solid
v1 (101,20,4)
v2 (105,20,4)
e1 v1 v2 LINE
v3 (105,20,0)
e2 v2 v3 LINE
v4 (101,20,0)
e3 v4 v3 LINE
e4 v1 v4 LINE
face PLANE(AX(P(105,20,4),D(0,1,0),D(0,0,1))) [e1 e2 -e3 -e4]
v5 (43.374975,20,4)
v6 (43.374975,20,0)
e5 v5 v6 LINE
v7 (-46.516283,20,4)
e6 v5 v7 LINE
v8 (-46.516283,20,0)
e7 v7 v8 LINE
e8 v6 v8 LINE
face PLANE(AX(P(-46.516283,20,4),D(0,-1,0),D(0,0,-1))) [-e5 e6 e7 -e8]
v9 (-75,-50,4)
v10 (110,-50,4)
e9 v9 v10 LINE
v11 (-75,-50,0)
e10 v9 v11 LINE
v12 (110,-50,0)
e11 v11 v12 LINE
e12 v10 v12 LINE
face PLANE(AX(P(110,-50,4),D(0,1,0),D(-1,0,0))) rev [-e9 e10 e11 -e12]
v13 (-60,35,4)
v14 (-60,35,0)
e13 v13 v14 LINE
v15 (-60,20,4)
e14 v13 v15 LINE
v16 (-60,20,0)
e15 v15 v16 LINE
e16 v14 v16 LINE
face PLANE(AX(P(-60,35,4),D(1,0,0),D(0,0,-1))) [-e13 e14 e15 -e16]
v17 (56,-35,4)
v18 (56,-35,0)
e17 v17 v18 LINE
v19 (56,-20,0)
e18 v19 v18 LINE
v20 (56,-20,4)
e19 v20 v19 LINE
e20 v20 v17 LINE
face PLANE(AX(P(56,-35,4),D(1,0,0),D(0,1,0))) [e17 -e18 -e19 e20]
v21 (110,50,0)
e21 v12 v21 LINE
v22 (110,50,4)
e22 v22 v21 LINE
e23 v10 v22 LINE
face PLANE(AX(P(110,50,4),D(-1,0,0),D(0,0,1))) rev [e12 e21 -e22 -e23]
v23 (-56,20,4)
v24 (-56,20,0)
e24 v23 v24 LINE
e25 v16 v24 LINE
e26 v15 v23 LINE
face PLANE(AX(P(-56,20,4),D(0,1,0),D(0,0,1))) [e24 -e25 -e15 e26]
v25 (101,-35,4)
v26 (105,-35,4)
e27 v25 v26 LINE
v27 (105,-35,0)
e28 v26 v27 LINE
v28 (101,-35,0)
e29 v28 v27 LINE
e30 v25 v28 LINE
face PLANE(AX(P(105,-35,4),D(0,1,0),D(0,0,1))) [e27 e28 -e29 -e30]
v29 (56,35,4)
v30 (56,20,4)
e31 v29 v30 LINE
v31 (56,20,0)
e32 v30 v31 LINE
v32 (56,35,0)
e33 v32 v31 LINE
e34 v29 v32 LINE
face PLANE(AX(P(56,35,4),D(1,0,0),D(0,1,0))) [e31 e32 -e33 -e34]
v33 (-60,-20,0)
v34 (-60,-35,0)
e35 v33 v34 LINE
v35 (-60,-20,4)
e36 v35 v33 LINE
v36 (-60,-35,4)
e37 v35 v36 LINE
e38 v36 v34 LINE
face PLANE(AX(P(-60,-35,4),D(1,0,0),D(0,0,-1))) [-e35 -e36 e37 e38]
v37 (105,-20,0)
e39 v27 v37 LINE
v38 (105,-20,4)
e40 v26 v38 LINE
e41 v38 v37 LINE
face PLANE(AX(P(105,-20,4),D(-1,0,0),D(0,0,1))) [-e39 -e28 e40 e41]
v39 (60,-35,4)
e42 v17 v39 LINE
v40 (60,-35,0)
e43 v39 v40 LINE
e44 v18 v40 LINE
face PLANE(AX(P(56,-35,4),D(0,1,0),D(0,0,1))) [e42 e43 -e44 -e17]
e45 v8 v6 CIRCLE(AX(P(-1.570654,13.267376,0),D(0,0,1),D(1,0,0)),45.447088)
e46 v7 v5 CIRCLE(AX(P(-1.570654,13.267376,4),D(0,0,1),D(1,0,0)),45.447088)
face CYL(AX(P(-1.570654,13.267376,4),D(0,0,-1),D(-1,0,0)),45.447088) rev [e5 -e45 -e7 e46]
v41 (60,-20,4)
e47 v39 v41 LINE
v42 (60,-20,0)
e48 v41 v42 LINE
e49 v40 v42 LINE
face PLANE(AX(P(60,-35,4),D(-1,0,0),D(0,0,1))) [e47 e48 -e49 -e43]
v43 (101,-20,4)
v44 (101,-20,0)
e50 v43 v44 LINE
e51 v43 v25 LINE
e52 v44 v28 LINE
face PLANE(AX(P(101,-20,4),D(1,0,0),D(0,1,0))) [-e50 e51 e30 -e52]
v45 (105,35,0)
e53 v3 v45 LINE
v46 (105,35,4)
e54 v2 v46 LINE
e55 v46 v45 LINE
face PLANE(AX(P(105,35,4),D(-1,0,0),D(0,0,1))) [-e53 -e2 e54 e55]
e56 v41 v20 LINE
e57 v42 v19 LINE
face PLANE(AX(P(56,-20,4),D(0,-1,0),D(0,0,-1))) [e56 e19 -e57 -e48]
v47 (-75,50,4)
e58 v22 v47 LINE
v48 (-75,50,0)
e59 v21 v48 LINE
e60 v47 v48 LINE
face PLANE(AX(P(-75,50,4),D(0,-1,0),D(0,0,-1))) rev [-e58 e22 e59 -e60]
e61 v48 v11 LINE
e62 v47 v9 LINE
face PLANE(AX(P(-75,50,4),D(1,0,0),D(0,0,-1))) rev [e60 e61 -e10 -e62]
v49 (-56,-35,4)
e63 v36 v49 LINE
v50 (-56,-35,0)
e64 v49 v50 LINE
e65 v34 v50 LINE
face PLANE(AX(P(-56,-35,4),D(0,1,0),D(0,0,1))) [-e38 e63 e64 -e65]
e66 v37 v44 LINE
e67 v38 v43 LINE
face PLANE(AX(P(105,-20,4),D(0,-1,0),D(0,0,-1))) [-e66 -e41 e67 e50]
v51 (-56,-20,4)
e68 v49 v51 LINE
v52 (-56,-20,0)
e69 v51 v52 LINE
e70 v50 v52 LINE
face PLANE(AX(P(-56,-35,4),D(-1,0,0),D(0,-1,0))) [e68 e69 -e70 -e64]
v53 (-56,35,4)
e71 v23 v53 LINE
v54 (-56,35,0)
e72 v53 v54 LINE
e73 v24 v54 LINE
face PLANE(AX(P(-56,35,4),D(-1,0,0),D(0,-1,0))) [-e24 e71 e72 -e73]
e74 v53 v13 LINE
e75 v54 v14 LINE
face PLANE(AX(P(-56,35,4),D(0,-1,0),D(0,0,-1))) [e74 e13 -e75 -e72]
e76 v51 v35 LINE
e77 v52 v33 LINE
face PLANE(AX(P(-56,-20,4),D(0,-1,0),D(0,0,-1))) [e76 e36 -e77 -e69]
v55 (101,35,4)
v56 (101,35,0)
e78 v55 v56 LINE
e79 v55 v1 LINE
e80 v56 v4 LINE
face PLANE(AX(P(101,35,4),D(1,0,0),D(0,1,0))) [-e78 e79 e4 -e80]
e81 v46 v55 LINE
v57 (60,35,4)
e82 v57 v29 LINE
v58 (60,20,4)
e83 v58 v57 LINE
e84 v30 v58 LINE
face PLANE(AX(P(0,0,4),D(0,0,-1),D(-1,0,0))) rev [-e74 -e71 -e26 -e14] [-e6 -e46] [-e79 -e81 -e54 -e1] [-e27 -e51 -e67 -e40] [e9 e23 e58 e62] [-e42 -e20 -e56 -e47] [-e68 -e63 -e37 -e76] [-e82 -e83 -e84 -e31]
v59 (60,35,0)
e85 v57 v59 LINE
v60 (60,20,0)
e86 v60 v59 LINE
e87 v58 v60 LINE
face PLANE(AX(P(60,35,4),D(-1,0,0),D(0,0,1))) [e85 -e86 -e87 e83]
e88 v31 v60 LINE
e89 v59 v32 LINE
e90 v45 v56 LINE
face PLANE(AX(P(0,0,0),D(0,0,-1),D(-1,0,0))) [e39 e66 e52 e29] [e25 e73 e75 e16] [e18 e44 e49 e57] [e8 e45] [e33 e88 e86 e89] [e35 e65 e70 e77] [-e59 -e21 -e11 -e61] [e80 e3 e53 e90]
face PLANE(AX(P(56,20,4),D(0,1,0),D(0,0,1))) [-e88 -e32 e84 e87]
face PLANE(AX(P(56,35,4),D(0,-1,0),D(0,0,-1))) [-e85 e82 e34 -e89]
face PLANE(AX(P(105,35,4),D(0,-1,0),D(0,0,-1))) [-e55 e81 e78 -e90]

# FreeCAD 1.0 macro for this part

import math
import FreeCAD as App
import Part
import Sketcher


def add_polygon(sketch, points):
    """Adds a closed chain of lines whose ends are joined by coincident constraints."""
    first, n = sketch.GeometryCount, len(points)
    for a, b in zip(points, points[1:] + points[:1]):
        sketch.addGeometry(Part.LineSegment(App.Vector(*a, 0), App.Vector(*b, 0)), False)
    for i in range(n):
        sketch.addConstraint(Sketcher.Constraint("Coincident", first + i, 2, first + (i + 1) % n, 1))

doc = App.newDocument("Part")
body = doc.addObject("PartDesign::Body", "Body")

sketch1 = body.newObject("Sketcher::SketchObject", "Sketch")
sketch1.AttachmentSupport = (doc.getObject("XY_Plane"), [""])
sketch1.MapMode = "FlatFace"
add_polygon(sketch1, [(-75, -50), (110, -50), (110, 50), (-75, 50)])
add_polygon(sketch1, [(-56, -35), (-60, -35), (-60, -20), (-56, -20)])
sketch1.addGeometry(Part.ArcOfCircle(Part.Circle(App.Vector(-1.570654, 13.267376, 0), App.Vector(0, 0, 1), 45.447088), math.radians(171.48073), math.radians(368.51927)), False)
sketch1.addGeometry(Part.LineSegment(App.Vector(-46.516283, 20, 0), App.Vector(43.374975, 20, 0)), False)
add_polygon(sketch1, [(60, -35), (56, -35), (56, -20), (60, -20)])
add_polygon(sketch1, [(105, -35), (101, -35), (101, -20), (105, -20)])
add_polygon(sketch1, [(-56, 20), (-60, 20), (-60, 35), (-56, 35)])
add_polygon(sketch1, [(60, 20), (56, 20), (56, 35), (60, 35)])
add_polygon(sketch1, [(105, 20), (101, 20), (101, 35), (105, 35)])
sketch1.addConstraint([
    Sketcher.Constraint("Coincident", 8, 1, 9, 1),
    Sketcher.Constraint("Coincident", 9, 2, 8, 2),
    Sketcher.Constraint("Horizontal", 0),
    Sketcher.Constraint("Vertical", 1),
    Sketcher.Constraint("Horizontal", 2),
    Sketcher.Constraint("Vertical", 3),
    Sketcher.Constraint("Horizontal", 4),
    Sketcher.Constraint("Vertical", 5),
    Sketcher.Constraint("Horizontal", 6),
    Sketcher.Constraint("Vertical", 7),
    Sketcher.Constraint("Horizontal", 9),
    Sketcher.Constraint("Horizontal", 10),
    Sketcher.Constraint("Vertical", 11),
    Sketcher.Constraint("Horizontal", 12),
    Sketcher.Constraint("Vertical", 13),
    Sketcher.Constraint("Horizontal", 14),
    Sketcher.Constraint("Vertical", 15),
    Sketcher.Constraint("Horizontal", 16),
    Sketcher.Constraint("Vertical", 17),
    Sketcher.Constraint("Horizontal", 18),
    Sketcher.Constraint("Vertical", 19),
    Sketcher.Constraint("Horizontal", 20),
    Sketcher.Constraint("Vertical", 21),
    Sketcher.Constraint("Horizontal", 22),
    Sketcher.Constraint("Vertical", 23),
    Sketcher.Constraint("Horizontal", 24),
    Sketcher.Constraint("Vertical", 25),
    Sketcher.Constraint("Horizontal", 26),
    Sketcher.Constraint("Vertical", 27),
    Sketcher.Constraint("Horizontal", 28),
    Sketcher.Constraint("Vertical", 29),
    Sketcher.Constraint("Symmetric", 12, 2, 18, 2, -1, 1),
    Sketcher.Constraint("Symmetric", 10, 2, 20, 2, -1, 1),
    Sketcher.Constraint("Symmetric", 6, 2, 22, 2, -1, 1),
    Sketcher.Constraint("Symmetric", 4, 2, 24, 2, -1, 1),
    Sketcher.Constraint("Symmetric", 7, 2, 10, 2, -2),
    Sketcher.Constraint("Symmetric", 5, 2, 12, 2, -2),
    Sketcher.Constraint("Symmetric", 15, 2, 26, 2, -1),
    Sketcher.Constraint("Symmetric", 17, 2, 28, 2, -1),
    Sketcher.Constraint("Horizontal", 13, 2, 14, 2),
    Sketcher.Constraint("Horizontal", 12, 2, 15, 2),
    Sketcher.Constraint("Horizontal", 9, 2, 18, 2),
    Sketcher.Constraint("Equal", 12, 14),
    Sketcher.Constraint("DistanceX", 0, 1, 0, 2, 185.0),
    Sketcher.Constraint("DistanceX", 4, 2, 4, 1, 4.0),
    Sketcher.Constraint("DistanceY", 1, 1, 1, 2, 100.0),
    Sketcher.Constraint("DistanceY", 5, 1, 5, 2, 15.0),
    Sketcher.Constraint("DistanceX", -1, 1, 0, 2, 110.0),
    Sketcher.Constraint("DistanceY", 0, 2, -1, 1, 50.0),
    Sketcher.Constraint("DistanceX", 4, 2, -1, 1, 60.0),
    Sketcher.Constraint("DistanceY", 4, 2, -1, 1, 35.0),
    Sketcher.Constraint("DistanceX", -1, 1, 14, 2, 101.0),
    Sketcher.Constraint("Radius", 8, 45.447088),
    Sketcher.Constraint("DistanceX", 9, 1, 9, 2, 89.891258),
    Sketcher.Constraint("DistanceX", 8, 3, -1, 1, 1.570654),
])
pad1 = body.newObject("PartDesign::Pad", "Pad")
pad1.Profile = sketch1
pad1.Length = 4

doc.recompute()
